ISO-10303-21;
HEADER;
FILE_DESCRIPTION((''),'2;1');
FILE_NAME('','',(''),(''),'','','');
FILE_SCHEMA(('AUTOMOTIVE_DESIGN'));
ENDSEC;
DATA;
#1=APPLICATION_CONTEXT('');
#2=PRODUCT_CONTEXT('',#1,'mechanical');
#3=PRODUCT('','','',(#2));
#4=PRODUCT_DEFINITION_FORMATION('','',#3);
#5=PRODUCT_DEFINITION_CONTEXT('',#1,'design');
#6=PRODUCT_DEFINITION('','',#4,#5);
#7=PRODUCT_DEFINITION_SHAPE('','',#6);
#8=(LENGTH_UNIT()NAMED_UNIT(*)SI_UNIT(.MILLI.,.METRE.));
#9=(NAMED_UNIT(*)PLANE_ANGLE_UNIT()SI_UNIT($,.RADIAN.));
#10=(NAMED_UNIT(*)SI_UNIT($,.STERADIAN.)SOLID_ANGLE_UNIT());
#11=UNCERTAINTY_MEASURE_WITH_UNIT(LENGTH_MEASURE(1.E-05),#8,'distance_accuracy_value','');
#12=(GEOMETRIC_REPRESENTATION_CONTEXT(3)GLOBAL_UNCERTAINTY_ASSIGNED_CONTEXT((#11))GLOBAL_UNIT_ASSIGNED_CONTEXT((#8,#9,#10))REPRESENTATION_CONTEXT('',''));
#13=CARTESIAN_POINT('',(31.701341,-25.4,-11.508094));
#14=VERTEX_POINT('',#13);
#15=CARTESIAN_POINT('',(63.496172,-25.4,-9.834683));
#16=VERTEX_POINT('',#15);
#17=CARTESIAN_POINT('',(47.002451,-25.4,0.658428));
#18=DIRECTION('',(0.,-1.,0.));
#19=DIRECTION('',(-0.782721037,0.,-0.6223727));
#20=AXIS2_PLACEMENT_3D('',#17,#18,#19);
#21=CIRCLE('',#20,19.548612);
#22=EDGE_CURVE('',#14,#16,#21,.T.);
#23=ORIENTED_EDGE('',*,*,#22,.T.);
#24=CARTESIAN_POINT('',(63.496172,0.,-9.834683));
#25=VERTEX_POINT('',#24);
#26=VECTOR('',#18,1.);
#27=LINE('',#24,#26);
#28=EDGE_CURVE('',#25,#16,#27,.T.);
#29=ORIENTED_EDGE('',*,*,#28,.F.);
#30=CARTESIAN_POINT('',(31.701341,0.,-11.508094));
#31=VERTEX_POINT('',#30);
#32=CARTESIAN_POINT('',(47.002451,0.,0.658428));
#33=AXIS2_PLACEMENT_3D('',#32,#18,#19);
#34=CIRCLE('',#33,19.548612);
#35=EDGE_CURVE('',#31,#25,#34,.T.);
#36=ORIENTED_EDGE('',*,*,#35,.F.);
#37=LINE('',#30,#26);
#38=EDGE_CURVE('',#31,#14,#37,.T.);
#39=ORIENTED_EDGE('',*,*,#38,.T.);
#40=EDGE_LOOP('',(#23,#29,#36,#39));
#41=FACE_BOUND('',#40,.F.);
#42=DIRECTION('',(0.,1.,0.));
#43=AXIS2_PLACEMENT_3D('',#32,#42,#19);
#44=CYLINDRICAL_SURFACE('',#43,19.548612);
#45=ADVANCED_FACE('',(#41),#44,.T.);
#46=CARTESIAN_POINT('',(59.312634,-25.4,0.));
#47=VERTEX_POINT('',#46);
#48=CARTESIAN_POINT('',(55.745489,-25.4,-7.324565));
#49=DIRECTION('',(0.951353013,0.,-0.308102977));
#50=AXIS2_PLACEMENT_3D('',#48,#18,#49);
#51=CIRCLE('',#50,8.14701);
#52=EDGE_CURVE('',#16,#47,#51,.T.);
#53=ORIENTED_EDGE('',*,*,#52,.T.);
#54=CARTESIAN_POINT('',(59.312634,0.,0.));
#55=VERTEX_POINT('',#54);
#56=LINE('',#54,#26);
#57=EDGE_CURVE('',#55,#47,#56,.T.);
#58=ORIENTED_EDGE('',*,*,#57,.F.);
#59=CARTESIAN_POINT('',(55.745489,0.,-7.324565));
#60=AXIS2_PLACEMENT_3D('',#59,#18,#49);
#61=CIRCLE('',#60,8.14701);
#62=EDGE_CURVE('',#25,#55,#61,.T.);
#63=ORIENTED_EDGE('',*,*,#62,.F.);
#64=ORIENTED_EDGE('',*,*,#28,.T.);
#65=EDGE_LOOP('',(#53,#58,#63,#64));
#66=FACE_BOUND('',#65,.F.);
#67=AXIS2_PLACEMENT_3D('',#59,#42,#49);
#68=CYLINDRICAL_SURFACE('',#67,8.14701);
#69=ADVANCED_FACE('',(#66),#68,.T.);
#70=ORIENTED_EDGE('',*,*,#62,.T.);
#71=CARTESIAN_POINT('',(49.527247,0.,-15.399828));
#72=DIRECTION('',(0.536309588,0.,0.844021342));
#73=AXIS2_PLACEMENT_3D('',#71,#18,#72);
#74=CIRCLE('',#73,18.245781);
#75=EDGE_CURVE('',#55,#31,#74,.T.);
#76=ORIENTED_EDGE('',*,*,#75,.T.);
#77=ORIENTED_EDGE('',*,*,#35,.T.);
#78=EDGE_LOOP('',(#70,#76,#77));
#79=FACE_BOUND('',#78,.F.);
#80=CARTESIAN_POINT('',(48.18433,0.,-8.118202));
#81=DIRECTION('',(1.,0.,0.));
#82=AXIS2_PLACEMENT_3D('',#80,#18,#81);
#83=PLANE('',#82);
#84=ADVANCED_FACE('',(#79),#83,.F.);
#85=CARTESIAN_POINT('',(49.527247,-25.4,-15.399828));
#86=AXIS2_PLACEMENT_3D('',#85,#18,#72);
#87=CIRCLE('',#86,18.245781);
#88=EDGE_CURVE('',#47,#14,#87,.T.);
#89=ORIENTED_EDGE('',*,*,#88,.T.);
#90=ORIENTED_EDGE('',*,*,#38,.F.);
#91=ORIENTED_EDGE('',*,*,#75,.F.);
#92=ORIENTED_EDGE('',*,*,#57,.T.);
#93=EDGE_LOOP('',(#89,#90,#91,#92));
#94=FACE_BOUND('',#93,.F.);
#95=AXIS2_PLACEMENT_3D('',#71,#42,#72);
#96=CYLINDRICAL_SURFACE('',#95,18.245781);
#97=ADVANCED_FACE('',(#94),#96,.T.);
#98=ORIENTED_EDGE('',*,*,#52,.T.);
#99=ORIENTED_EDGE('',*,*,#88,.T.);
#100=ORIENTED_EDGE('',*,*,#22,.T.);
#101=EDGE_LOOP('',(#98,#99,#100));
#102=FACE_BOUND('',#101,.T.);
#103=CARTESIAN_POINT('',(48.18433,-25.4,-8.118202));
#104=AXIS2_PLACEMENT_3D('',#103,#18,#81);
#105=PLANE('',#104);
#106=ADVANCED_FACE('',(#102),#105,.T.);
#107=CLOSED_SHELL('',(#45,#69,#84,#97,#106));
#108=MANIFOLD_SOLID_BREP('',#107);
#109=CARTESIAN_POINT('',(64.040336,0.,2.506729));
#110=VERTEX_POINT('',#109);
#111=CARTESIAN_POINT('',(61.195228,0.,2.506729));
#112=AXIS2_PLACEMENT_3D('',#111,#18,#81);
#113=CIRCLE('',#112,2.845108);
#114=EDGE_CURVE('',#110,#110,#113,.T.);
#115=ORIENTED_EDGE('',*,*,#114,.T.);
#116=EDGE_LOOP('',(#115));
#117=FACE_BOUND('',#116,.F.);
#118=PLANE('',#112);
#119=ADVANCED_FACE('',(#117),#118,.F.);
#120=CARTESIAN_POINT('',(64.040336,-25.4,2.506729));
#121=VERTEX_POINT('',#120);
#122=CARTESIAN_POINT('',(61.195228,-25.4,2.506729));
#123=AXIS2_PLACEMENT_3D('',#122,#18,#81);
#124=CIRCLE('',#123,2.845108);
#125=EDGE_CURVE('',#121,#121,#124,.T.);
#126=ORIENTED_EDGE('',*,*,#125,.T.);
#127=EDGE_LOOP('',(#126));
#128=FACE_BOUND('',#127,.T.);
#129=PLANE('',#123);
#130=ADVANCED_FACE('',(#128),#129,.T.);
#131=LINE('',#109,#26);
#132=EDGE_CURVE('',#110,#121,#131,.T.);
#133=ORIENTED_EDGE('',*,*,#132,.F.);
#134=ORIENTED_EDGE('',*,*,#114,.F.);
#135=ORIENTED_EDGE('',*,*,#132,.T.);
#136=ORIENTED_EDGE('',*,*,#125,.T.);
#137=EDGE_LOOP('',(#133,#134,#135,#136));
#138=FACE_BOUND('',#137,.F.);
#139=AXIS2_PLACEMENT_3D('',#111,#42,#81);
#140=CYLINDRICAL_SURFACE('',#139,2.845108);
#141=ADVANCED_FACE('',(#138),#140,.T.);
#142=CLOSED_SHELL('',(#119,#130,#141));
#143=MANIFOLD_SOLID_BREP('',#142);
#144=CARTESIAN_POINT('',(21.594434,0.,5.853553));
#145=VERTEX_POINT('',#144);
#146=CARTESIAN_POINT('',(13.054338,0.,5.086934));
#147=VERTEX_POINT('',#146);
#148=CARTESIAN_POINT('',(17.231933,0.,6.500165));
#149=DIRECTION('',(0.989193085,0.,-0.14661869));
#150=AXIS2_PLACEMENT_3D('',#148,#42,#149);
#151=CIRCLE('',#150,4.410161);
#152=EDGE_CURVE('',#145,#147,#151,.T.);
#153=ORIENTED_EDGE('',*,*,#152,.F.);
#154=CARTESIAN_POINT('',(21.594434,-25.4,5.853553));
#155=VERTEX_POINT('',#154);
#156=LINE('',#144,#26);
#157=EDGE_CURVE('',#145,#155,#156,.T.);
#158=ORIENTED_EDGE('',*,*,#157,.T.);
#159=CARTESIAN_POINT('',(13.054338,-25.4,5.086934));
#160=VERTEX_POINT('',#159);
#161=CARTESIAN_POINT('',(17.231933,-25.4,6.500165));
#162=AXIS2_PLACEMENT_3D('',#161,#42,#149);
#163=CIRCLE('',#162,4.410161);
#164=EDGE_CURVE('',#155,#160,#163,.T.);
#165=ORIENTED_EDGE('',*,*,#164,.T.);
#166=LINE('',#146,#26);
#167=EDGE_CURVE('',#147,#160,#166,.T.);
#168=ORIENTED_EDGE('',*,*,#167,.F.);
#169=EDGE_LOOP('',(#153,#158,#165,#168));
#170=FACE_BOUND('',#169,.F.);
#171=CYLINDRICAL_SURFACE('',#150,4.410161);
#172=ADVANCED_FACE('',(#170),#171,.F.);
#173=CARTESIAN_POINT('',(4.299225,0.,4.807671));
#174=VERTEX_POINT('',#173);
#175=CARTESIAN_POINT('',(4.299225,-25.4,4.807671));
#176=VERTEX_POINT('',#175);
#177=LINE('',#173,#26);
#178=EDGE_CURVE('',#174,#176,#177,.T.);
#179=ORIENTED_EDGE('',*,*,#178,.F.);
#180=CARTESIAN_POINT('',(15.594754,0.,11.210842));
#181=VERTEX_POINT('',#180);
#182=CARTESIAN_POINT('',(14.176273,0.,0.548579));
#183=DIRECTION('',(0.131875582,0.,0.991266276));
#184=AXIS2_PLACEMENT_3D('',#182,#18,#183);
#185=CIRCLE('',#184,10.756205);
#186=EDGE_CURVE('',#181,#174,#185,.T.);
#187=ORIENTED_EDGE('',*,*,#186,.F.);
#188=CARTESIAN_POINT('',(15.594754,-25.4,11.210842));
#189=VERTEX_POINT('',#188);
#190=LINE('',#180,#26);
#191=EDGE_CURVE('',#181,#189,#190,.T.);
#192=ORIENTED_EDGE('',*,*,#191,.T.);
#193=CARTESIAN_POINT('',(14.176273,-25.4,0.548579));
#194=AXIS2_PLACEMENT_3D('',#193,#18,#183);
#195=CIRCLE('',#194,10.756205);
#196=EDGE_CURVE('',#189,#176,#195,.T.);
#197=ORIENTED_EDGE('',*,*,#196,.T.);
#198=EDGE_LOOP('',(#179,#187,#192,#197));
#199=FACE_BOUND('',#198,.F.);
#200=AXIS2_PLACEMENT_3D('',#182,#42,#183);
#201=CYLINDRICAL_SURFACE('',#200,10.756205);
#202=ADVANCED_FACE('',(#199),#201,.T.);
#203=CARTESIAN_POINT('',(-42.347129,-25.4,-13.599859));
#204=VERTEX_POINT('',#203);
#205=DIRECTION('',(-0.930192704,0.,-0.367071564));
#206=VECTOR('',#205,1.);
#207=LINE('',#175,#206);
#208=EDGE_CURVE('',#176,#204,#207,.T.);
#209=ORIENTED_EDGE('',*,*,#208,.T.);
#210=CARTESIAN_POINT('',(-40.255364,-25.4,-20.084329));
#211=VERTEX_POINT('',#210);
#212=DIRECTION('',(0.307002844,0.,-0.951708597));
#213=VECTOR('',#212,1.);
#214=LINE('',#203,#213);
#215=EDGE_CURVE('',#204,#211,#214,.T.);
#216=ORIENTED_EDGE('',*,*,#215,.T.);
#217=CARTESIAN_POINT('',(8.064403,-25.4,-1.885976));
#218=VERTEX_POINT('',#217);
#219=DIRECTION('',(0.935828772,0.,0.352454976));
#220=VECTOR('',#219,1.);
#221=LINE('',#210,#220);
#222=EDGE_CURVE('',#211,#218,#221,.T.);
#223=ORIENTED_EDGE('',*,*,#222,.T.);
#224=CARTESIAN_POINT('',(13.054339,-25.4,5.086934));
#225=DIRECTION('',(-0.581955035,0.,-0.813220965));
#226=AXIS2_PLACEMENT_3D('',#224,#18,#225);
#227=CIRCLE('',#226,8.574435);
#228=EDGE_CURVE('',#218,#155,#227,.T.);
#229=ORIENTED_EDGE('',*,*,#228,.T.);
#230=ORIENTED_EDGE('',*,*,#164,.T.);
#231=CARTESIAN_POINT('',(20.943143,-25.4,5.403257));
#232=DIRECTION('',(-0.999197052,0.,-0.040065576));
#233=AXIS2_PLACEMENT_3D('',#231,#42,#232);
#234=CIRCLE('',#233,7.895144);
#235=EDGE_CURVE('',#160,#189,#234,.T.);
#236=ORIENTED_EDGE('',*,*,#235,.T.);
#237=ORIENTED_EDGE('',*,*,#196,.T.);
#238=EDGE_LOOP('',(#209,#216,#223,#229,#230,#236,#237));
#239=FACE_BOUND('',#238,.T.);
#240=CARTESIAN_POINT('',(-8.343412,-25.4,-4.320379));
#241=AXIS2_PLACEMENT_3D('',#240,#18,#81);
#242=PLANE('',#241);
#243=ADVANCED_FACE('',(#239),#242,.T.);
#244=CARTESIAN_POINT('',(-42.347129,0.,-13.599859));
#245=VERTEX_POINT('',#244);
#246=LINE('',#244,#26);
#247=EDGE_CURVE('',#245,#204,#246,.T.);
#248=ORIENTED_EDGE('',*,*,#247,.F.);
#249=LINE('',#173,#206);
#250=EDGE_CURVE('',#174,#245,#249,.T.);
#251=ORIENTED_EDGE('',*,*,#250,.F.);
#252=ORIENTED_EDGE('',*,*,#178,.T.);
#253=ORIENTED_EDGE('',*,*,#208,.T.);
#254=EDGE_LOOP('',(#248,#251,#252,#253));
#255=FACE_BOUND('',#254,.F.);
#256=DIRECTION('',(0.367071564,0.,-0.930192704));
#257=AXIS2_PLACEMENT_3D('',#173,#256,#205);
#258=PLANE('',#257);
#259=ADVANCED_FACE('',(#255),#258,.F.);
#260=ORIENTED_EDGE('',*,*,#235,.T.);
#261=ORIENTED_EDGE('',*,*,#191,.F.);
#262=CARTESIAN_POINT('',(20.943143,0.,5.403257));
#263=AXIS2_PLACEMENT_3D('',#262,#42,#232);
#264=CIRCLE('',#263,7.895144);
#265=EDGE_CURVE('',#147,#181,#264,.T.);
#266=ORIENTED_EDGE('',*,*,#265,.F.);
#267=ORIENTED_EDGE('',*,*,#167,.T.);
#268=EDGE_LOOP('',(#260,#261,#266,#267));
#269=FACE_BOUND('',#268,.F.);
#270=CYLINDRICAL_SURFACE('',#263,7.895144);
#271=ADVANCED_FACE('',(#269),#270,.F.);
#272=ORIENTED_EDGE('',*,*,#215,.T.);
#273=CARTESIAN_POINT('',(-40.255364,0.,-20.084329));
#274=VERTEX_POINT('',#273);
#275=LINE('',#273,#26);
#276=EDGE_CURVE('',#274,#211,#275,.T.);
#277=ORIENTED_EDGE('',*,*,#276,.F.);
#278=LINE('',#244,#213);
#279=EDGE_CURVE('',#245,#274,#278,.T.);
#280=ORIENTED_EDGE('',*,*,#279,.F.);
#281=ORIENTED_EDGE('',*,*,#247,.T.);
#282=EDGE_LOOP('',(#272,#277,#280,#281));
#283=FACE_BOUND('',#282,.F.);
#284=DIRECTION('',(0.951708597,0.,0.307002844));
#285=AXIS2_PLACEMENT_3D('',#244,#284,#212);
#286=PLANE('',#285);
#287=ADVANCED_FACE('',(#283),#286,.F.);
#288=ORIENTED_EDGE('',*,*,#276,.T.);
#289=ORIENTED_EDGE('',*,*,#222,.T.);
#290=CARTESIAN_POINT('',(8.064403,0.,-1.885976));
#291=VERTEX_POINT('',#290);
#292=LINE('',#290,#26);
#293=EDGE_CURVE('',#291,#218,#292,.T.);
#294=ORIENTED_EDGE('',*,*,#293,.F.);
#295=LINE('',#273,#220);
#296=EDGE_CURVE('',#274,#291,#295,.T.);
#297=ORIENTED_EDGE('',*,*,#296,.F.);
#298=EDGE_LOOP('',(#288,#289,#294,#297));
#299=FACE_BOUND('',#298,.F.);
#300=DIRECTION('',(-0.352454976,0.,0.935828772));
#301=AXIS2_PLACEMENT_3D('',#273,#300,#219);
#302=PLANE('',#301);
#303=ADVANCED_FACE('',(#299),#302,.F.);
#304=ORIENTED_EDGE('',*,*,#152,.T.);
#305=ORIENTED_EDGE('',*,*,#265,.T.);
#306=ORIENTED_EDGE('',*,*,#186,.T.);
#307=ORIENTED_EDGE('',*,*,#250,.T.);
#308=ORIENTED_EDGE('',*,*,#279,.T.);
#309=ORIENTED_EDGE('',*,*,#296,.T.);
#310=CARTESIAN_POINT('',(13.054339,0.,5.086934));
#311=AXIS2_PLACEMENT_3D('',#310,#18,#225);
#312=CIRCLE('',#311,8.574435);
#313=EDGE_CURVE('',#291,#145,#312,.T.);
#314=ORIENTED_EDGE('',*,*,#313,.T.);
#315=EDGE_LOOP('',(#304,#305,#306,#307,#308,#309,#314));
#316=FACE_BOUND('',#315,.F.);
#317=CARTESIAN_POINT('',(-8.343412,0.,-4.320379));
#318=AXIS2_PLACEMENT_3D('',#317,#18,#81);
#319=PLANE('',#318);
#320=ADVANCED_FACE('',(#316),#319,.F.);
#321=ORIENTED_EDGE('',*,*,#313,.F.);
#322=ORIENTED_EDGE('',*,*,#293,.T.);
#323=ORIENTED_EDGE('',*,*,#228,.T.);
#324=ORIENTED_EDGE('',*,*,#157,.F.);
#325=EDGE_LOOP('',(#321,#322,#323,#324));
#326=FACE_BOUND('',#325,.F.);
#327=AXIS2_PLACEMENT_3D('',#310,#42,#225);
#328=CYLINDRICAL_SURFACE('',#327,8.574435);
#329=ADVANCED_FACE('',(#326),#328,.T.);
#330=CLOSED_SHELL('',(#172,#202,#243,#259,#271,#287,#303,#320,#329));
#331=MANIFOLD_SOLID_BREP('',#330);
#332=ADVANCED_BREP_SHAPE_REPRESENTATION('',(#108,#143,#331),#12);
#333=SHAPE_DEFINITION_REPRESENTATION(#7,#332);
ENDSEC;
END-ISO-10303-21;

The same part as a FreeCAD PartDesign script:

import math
import FreeCAD as App
import Part
import Sketcher

V = App.Vector
Q = App.Units.Quantity

doc = App.newDocument("Part")
body = doc.addObject("PartDesign::Body", "Body")
body.AllowCompound = True

# Sketch on XZ plane
sketch1 = doc.addObject("Sketcher::SketchObject", "Sketch")
body.addObject(sketch1)
sketch1.AttachmentSupport = (doc.XZ_Plane, [""])
sketch1.MapMode = "FlatFace"
sketch1.addGeometry([
    Part.ArcOfCircle(Part.Circle(V(49.5, -15.4, 0), V(0, 0, 1), 18.2), math.radians(58), math.radians(168)),  # 0
    Part.ArcOfCircle(Part.Circle(V(47, 0.7, 0), V(0, 0, 1), 19.5), math.radians(-142), math.radians(-32)),  # 1
    Part.ArcOfCircle(Part.Circle(V(55.7, -7.3, 0), V(0, 0, 1), 8.1), math.radians(-18), math.radians(64)),  # 2
    Part.Circle(V(61.2, 2.5, 0), V(0, 0, 1), 2.8),  # 3
    Part.LineSegment(V(-42.3, -13.6, 0), V(-40.3, -20.1, 0)),  # 4
    Part.LineSegment(V(-40.3, -20.1, 0), V(8.1, -1.9, 0)),  # 5
    Part.ArcOfCircle(Part.Circle(V(13.1, 5.1, 0), V(0, 0, 1), 8.6), math.radians(-126), math.radians(5)),  # 6
    Part.ArcOfCircle(Part.Circle(V(17.2, 6.5, 0), V(0, 0, 1), 4.4), math.radians(-161), math.radians(-8)),  # 7
    Part.ArcOfCircle(Part.Circle(V(20.9, 5.4, 0), V(0, 0, 1), 7.9), math.radians(133), math.radians(182)),  # 8
    Part.ArcOfCircle(Part.Circle(V(14.2, 0.5, 0), V(0, 0, 1), 10.8), math.radians(82), math.radians(157)),  # 9
    Part.LineSegment(V(4.3, 4.8, 0), V(-42.3, -13.6, 0)),  # 10
], False)
sketch1.addConstraint([
    Sketcher.Constraint("Coincident", 0, 2, 1, 1),
    Sketcher.Constraint("Coincident", 1, 2, 2, 1),
    Sketcher.Constraint("Coincident", 2, 2, 0, 1),
    Sketcher.Constraint("Coincident", 4, 2, 5, 1),
    Sketcher.Constraint("Coincident", 5, 2, 6, 1),
    Sketcher.Constraint("Coincident", 6, 2, 7, 2),
    Sketcher.Constraint("Coincident", 7, 1, 8, 2),
    Sketcher.Constraint("Coincident", 8, 1, 9, 1),
    Sketcher.Constraint("Coincident", 9, 2, 10, 1),
    Sketcher.Constraint("Coincident", 10, 2, 4, 1),
    Sketcher.Constraint("Coincident", 7, 1, 6, 3),
    Sketcher.Constraint("PointOnObject", 2, 2, -1),
    Sketcher.Constraint("Radius", 0, Q("18.245781 mm")),
    Sketcher.Constraint("Radius", 1, Q("19.548612 mm")),
    Sketcher.Constraint("Radius", 2, Q("8.14701 mm")),
    Sketcher.Constraint("Radius", 7, Q("4.410161 mm")),
    Sketcher.Constraint("Diameter", 3, Q("5.690216 mm")),
    Sketcher.Constraint("Radius", 6, Q("8.574435 mm")),
    Sketcher.Constraint("Radius", 8, Q("7.895144 mm")),
    Sketcher.Constraint("Radius", 9, Q("10.756205 mm")),
    Sketcher.Constraint("DistanceY", 1, 3, 3, 3, Q("1.848301 mm")),
    Sketcher.Constraint("DistanceY", 2, 3, 6, 3, Q("12.411499 mm")),
    Sketcher.Constraint("DistanceX", 8, 3, 0, 2, Q("10.758198 mm")),
    Sketcher.Constraint("DistanceX", 7, 3, 6, 2, Q("4.362501 mm")),
    Sketcher.Constraint("Distance", 5, Q("51.633128 mm")),
    Sketcher.Constraint("Distance", 10, Q("50.146979 mm")),
    Sketcher.Constraint("DistanceY", 0, 3, -1, 1, Q("15.399828 mm")),
    Sketcher.Constraint("DistanceX", -1, 1, 1, 3, Q("47.002451 mm")),
    Sketcher.Constraint("DistanceY", -1, 1, 1, 3, Q("0.658428 mm")),
    Sketcher.Constraint("DistanceX", -1, 1, 2, 3, Q("55.745489 mm")),
    Sketcher.Constraint("DistanceX", -1, 1, 6, 3, Q("13.054339 mm")),
    Sketcher.Constraint("DistanceY", -1, 1, 9, 3, Q("0.548579 mm")),
    Sketcher.Constraint("DistanceX", -1, 1, 0, 2, Q("31.701341 mm")),
    Sketcher.Constraint("DistanceY", 4, 2, -1, 1, Q("20.084329 mm")),
    Sketcher.Constraint("DistanceY", -1, 1, 9, 2, Q("4.807671 mm")),
    Sketcher.Constraint("DistanceX", 10, 2, -1, 1, Q("42.347129 mm")),
    Sketcher.Constraint("DistanceY", 10, 2, -1, 1, Q("13.599859 mm")),
    Sketcher.Constraint("DistanceX", 2, 3, 3, 3, Q("5.449739 mm")),
    Sketcher.Constraint("DistanceX", 5, 2, 9, 3, Q("6.11187 mm")),
])
pad1 = doc.addObject("PartDesign::Pad", "Pad")
body.addObject(pad1)
pad1.Profile = sketch1
pad1.Length = Q("1 in")

doc.recompute()
